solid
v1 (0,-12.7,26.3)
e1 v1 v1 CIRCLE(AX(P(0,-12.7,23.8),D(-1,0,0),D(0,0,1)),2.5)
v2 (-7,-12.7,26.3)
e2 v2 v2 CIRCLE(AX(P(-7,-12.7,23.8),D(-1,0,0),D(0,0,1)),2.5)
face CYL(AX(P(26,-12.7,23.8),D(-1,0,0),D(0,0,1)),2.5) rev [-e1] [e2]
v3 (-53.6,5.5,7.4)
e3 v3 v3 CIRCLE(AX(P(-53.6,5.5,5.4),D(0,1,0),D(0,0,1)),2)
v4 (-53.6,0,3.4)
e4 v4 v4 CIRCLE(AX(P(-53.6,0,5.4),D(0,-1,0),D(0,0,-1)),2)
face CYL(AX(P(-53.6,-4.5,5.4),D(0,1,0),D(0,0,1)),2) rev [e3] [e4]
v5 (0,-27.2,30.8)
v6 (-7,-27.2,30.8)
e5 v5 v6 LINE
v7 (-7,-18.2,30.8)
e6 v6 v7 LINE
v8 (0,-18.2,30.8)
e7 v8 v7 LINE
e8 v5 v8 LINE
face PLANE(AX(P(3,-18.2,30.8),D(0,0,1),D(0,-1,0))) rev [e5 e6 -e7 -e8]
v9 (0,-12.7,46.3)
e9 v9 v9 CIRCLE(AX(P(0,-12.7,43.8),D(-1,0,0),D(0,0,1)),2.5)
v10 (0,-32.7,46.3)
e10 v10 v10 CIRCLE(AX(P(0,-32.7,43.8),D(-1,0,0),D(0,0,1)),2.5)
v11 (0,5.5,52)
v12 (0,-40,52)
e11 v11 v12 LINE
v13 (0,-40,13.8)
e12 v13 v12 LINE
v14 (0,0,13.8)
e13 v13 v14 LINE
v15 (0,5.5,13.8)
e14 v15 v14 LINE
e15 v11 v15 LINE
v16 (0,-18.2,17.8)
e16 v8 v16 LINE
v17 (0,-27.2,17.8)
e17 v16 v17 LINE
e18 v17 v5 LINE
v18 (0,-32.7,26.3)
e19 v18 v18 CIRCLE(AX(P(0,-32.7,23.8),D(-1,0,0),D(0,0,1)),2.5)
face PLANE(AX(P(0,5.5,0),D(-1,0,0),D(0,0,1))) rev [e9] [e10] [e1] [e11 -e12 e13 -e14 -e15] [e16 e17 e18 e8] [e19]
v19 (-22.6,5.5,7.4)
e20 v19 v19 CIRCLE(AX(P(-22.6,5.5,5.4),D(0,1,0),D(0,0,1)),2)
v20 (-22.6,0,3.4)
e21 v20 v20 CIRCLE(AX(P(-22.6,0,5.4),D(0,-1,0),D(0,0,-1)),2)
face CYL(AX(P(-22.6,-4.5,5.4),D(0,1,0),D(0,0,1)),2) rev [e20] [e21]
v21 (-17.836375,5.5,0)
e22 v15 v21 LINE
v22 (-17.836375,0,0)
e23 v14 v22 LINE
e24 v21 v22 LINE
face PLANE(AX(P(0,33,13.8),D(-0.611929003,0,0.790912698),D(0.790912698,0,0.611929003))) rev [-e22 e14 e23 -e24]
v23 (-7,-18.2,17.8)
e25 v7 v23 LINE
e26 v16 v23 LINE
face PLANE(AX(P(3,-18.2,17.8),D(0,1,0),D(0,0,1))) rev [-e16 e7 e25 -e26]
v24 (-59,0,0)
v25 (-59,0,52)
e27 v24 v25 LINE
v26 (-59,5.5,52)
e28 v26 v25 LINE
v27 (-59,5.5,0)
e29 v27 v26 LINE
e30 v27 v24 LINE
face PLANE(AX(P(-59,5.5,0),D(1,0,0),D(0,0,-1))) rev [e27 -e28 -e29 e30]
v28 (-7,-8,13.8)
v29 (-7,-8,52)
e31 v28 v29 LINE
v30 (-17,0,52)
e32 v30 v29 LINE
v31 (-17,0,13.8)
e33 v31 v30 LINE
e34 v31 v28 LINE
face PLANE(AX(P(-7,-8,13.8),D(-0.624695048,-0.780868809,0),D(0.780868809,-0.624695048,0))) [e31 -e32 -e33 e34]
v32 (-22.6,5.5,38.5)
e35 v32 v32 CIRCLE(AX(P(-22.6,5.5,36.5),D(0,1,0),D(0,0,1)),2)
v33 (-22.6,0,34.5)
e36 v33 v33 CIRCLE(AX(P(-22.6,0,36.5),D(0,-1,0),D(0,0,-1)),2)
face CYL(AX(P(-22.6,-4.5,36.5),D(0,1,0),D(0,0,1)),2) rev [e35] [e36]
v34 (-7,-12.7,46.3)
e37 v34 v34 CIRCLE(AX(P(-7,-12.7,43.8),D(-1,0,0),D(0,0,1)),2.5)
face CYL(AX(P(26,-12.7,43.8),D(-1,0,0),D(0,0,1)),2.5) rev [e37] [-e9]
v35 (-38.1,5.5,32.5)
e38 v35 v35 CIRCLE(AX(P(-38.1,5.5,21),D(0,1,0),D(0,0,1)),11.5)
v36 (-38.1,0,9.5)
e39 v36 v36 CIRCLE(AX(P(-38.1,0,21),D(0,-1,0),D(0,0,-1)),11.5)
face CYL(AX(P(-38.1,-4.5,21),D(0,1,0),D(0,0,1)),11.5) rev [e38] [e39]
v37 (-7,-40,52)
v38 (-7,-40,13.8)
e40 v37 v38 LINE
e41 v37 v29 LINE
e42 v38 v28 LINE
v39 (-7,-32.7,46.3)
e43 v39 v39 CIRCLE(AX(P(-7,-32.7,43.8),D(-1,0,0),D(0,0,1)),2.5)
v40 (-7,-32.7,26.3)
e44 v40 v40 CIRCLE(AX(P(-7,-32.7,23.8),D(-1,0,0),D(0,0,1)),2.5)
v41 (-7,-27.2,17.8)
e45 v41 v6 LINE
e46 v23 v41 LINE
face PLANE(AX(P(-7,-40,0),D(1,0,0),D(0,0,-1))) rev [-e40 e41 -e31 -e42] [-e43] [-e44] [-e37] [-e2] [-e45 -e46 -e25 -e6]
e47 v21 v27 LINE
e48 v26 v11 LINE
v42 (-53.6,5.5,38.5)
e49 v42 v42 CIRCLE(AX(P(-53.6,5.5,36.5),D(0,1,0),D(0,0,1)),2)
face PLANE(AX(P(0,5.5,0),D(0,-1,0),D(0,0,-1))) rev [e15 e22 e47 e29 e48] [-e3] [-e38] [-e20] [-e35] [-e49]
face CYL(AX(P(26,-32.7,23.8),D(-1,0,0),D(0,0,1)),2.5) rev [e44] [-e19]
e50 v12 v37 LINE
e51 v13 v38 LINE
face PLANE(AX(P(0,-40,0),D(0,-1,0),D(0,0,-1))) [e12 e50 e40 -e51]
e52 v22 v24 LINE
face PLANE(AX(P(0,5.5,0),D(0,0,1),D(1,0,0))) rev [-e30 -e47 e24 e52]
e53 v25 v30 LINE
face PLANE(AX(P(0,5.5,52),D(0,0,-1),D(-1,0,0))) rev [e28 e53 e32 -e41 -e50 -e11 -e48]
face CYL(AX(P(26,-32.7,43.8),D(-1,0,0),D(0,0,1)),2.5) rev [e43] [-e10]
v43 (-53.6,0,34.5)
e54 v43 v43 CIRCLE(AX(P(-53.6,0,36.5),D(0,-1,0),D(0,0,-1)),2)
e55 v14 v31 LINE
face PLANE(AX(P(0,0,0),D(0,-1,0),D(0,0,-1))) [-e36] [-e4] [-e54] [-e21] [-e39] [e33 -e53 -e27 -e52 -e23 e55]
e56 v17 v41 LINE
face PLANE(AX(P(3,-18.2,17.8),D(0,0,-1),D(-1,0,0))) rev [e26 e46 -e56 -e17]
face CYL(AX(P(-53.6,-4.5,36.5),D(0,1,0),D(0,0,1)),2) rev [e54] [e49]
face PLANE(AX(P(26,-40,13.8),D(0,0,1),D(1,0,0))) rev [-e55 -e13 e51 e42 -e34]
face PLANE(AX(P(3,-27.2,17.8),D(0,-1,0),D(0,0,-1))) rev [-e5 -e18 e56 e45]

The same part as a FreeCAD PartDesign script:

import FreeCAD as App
import Part
import Sketcher

doc = App.newDocument("Part")
body = doc.addObject("PartDesign::Body", "Body")

# Sketch on XZ plane
sketch1 = body.newObject("Sketcher::SketchObject", "Sketch")
sketch1.AttachmentSupport = (doc.getObject("XZ_Plane"), [""])
sketch1.MapMode = "FlatFace"
sketch1.addGeometry(Part.LineSegment(App.Vector(-59, 0, 0), App.Vector(-59, 52, 0)), False)
sketch1.addGeometry(Part.LineSegment(App.Vector(-59, 52, 0), App.Vector(0, 52, 0)), False)
sketch1.addGeometry(Part.LineSegment(App.Vector(0, 52, 0), App.Vector(0, 0, 0)), False)
sketch1.addGeometry(Part.LineSegment(App.Vector(0, 0, 0), App.Vector(-59, 0, 0)), False)
sketch1.addConstraint(Sketcher.Constraint("Coincident", 0, 2, 1, 1))
sketch1.addConstraint(Sketcher.Constraint("Coincident", 1, 2, 2, 1))
sketch1.addConstraint(Sketcher.Constraint("Coincident", 2, 2, 3, 1))
sketch1.addConstraint(Sketcher.Constraint("Coincident", 3, 2, 0, 1))
sketch1.addConstraint(Sketcher.Constraint("Vertical", 0))
sketch1.addConstraint(Sketcher.Constraint("Horizontal", 1))
sketch1.addConstraint(Sketcher.Constraint("Vertical", 2))
sketch1.addConstraint(Sketcher.Constraint("Horizontal", 3))
sketch1.addConstraint(Sketcher.Constraint("Coincident", 2, 2, -1, 1))
sketch1.addConstraint(Sketcher.Constraint("DistanceX", 1, 1, 1, 2, 59.0))
sketch1.addConstraint(Sketcher.Constraint("DistanceY", 0, 1, 0, 2, 52.0))
pad1 = body.newObject("PartDesign::Pad", "Pad")
pad1.Profile = sketch1
pad1.Length = 5.5
pad1.Reversed = True

# Sketch on XZ plane
sketch2 = body.newObject("Sketcher::SketchObject", "Sketch001")
sketch2.AttachmentSupport = (doc.getObject("XZ_Plane"), [""])
sketch2.MapMode = "FlatFace"
sketch2.AttachmentOffset = App.Placement(App.Vector(0, 0, -5.5), App.Rotation())
sketch2.addGeometry(Part.Circle(App.Vector(-53.6, 5.4, 0), App.Vector(0, 0, 1), 2), False)
sketch2.addGeometry(Part.Circle(App.Vector(-22.6, 5.4, 0), App.Vector(0, 0, 1), 2), False)
sketch2.addGeometry(Part.Circle(App.Vector(-53.6, 36.5, 0), App.Vector(0, 0, 1), 2), False)
sketch2.addGeometry(Part.Circle(App.Vector(-22.6, 36.5, 0), App.Vector(0, 0, 1), 2), False)
sketch2.addConstraint(Sketcher.Constraint("Equal", 0, 1))
sketch2.addConstraint(Sketcher.Constraint("Equal", 1, 2))
sketch2.addConstraint(Sketcher.Constraint("Equal", 2, 3))
sketch2.addConstraint(Sketcher.Constraint("Horizontal", 0, 3, 1, 3))
sketch2.addConstraint(Sketcher.Constraint("Horizontal", 2, 3, 3, 3))
sketch2.addConstraint(Sketcher.Constraint("Vertical", 0, 3, 2, 3))
sketch2.addConstraint(Sketcher.Constraint("Vertical", 1, 3, 3, 3))
sketch2.addConstraint(Sketcher.Constraint("Diameter", 0, 4.0))
sketch2.addConstraint(Sketcher.Constraint("DistanceX", 0, 3, 1, 3, 31.0))
sketch2.addConstraint(Sketcher.Constraint("DistanceX", 0, 3, -1, 1, 53.6))
sketch2.addConstraint(Sketcher.Constraint("DistanceY", -1, 1, 0, 3, 5.4))
sketch2.addConstraint(Sketcher.Constraint("DistanceY", -1, 1, 2, 3, 36.5))
pocket1 = body.newObject("PartDesign::Pocket", "Pocket")
pocket1.Profile = sketch2
pocket1.Length = 10
pocket1.Reversed = True

# Sketch on XZ plane
sketch3 = body.newObject("Sketcher::SketchObject", "Sketch002")
sketch3.AttachmentSupport = (doc.getObject("XZ_Plane"), [""])
sketch3.MapMode = "FlatFace"
sketch3.addGeometry(Part.LineSegment(App.Vector(0, 0, 0), App.Vector(0, 52, 0)), False)
sketch3.addGeometry(Part.LineSegment(App.Vector(0, 52, 0), App.Vector(-7, 52, 0)), False)
sketch3.addGeometry(Part.LineSegment(App.Vector(-7, 52, 0), App.Vector(-7, 0, 0)), False)
sketch3.addGeometry(Part.LineSegment(App.Vector(-7, 0, 0), App.Vector(0, 0, 0)), False)
sketch3.addConstraint(Sketcher.Constraint("Coincident", 0, 2, 1, 1))
sketch3.addConstraint(Sketcher.Constraint("Coincident", 1, 2, 2, 1))
sketch3.addConstraint(Sketcher.Constraint("Coincident", 2, 2, 3, 1))
sketch3.addConstraint(Sketcher.Constraint("Coincident", 3, 2, 0, 1))
sketch3.addConstraint(Sketcher.Constraint("Vertical", 0))
sketch3.addConstraint(Sketcher.Constraint("Horizontal", 1))
sketch3.addConstraint(Sketcher.Constraint("Vertical", 2))
sketch3.addConstraint(Sketcher.Constraint("Horizontal", 3))
sketch3.addConstraint(Sketcher.Constraint("Coincident", 3, 2, -1, 1))
sketch3.addConstraint(Sketcher.Constraint("DistanceX", 1, 2, 1, 1, 7.0))
sketch3.addConstraint(Sketcher.Constraint("DistanceY", 0, 1, 0, 2, 52.0))
pad2 = body.newObject("PartDesign::Pad", "Pad001")
pad2.Profile = sketch3
pad2.Length = 40

# Sketch on YZ plane
sketch4 = body.newObject("Sketcher::SketchObject", "Sketch003")
sketch4.AttachmentSupport = (doc.getObject("YZ_Plane"), [""])
sketch4.MapMode = "FlatFace"
sketch4.AttachmentOffset = App.Placement(App.Vector(0, 0, -7), App.Rotation())
sketch4.addGeometry(Part.Circle(App.Vector(-32.7, 43.8, 0), App.Vector(0, 0, 1), 2.5), False)
sketch4.addGeometry(Part.Circle(App.Vector(-12.7, 43.8, 0), App.Vector(0, 0, 1), 2.5), False)
sketch4.addGeometry(Part.Circle(App.Vector(-32.7, 23.8, 0), App.Vector(0, 0, 1), 2.5), False)
sketch4.addGeometry(Part.Circle(App.Vector(-12.7, 23.8, 0), App.Vector(0, 0, 1), 2.5), False)
sketch4.addConstraint(Sketcher.Constraint("Equal", 0, 1))
sketch4.addConstraint(Sketcher.Constraint("Equal", 1, 2))
sketch4.addConstraint(Sketcher.Constraint("Equal", 2, 3))
sketch4.addConstraint(Sketcher.Constraint("Horizontal", 0, 3, 1, 3))
sketch4.addConstraint(Sketcher.Constraint("Horizontal", 2, 3, 3, 3))
sketch4.addConstraint(Sketcher.Constraint("Vertical", 0, 3, 2, 3))
sketch4.addConstraint(Sketcher.Constraint("Vertical", 1, 3, 3, 3))
sketch4.addConstraint(Sketcher.Constraint("Diameter", 0, 5.0))
sketch4.addConstraint(Sketcher.Constraint("DistanceX", 0, 3, 1, 3, 20.0))
sketch4.addConstraint(Sketcher.Constraint("DistanceY", 2, 3, 0, 3, 20.0))
sketch4.addConstraint(Sketcher.Constraint("DistanceX", 0, 3, -1, 1, 32.7))
sketch4.addConstraint(Sketcher.Constraint("DistanceY", -1, 1, 0, 3, 43.8))
pocket2 = body.newObject("PartDesign::Pocket", "Pocket001")
pocket2.Profile = sketch4
pocket2.Length = 33
pocket2.Reversed = True

# Sketch on YZ plane
sketch5 = body.newObject("Sketcher::SketchObject", "Sketch004")
sketch5.AttachmentSupport = (doc.getObject("YZ_Plane"), [""])
sketch5.MapMode = "FlatFace"
sketch5.AttachmentOffset = App.Placement(App.Vector(0, 0, -7), App.Rotation())
sketch5.addGeometry(Part.LineSegment(App.Vector(0, 0, 0), App.Vector(-40, 0, 0)), False)
sketch5.addGeometry(Part.LineSegment(App.Vector(-40, 0, 0), App.Vector(-40, 14, 0)), False)
sketch5.addGeometry(Part.LineSegment(App.Vector(-40, 14, 0), App.Vector(0, 14, 0)), False)
sketch5.addGeometry(Part.LineSegment(App.Vector(0, 14, 0), App.Vector(0, 0, 0)), False)
sketch5.addConstraint(Sketcher.Constraint("Coincident", 0, 2, 1, 1))
sketch5.addConstraint(Sketcher.Constraint("Coincident", 1, 2, 2, 1))
sketch5.addConstraint(Sketcher.Constraint("Coincident", 2, 2, 3, 1))
sketch5.addConstraint(Sketcher.Constraint("Coincident", 3, 2, 0, 1))
sketch5.addConstraint(Sketcher.Constraint("Horizontal", 0))
sketch5.addConstraint(Sketcher.Constraint("Vertical", 1))
sketch5.addConstraint(Sketcher.Constraint("Horizontal", 2))
sketch5.addConstraint(Sketcher.Constraint("Vertical", 3))
sketch5.addConstraint(Sketcher.Constraint("Coincident", 3, 2, -1, 1))
sketch5.addConstraint(Sketcher.Constraint("DistanceX", 0, 2, 0, 1, 40.0))
sketch5.addConstraint(Sketcher.Constraint("DistanceY", 1, 1, 1, 2, 13.8))
pocket3 = body.newObject("PartDesign::Pocket", "Pocket002")
pocket3.Profile = sketch5
pocket3.Length = 33
pocket3.Reversed = True

# Sketch on XZ plane
sketch6 = body.newObject("Sketcher::SketchObject", "Sketch005")
sketch6.AttachmentSupport = (doc.getObject("XZ_Plane"), [""])
sketch6.MapMode = "FlatFace"
sketch6.addGeometry(Part.LineSegment(App.Vector(0, 0, 0), App.Vector(0, 14, 0)), False)
sketch6.addGeometry(Part.LineSegment(App.Vector(0, 14, 0), App.Vector(-18, 0, 0)), False)
sketch6.addGeometry(Part.LineSegment(App.Vector(-18, 0, 0), App.Vector(0, 0, 0)), False)
sketch6.addConstraint(Sketcher.Constraint("Coincident", 0, 2, 1, 1))
sketch6.addConstraint(Sketcher.Constraint("Coincident", 1, 2, 2, 1))
sketch6.addConstraint(Sketcher.Constraint("Coincident", 2, 2, 0, 1))
sketch6.addConstraint(Sketcher.Constraint("Vertical", 0))
sketch6.addConstraint(Sketcher.Constraint("Horizontal", 2))
sketch6.addConstraint(Sketcher.Constraint("Coincident", 2, 2, -1, 1))
sketch6.addConstraint(Sketcher.Constraint("DistanceY", 0, 1, 0, 2, 13.8))
sketch6.addConstraint(Sketcher.Constraint("DistanceX", 2, 1, 2, 2, 17.836375))
pocket4 = body.newObject("PartDesign::Pocket", "Pocket003")
pocket4.Profile = sketch6
pocket4.Length = 33

# Sketch on XY plane
sketch7 = body.newObject("Sketcher::SketchObject", "Sketch006")
sketch7.AttachmentSupport = (doc.getObject("XY_Plane"), [""])
sketch7.MapMode = "FlatFace"
sketch7.AttachmentOffset = App.Placement(App.Vector(0, 0, 52), App.Rotation())
sketch7.addGeometry(Part.LineSegment(App.Vector(-7, -8, 0), App.Vector(-7, 0, 0)), False)
sketch7.addGeometry(Part.LineSegment(App.Vector(-7, 0, 0), App.Vector(-17, 0, 0)), False)
sketch7.addGeometry(Part.LineSegment(App.Vector(-17, 0, 0), App.Vector(-7, -8, 0)), False)
sketch7.addConstraint(Sketcher.Constraint("Coincident", 0, 2, 1, 1))
sketch7.addConstraint(Sketcher.Constraint("Coincident", 1, 2, 2, 1))
sketch7.addConstraint(Sketcher.Constraint("Coincident", 2, 2, 0, 1))
sketch7.addConstraint(Sketcher.Constraint("Vertical", 0))
sketch7.addConstraint(Sketcher.Constraint("Horizontal", 1))
sketch7.addConstraint(Sketcher.Constraint("PointOnObject", 0, 2, -1))
sketch7.addConstraint(Sketcher.Constraint("DistanceX", 1, 2, 1, 1, 10.0))
sketch7.addConstraint(Sketcher.Constraint("DistanceY", 0, 1, 0, 2, 8.0))
sketch7.addConstraint(Sketcher.Constraint("DistanceX", 0, 2, -1, 1, 7.0))
pad3 = body.newObject("PartDesign::Pad", "Pad002")
pad3.Profile = sketch7
pad3.Length = 38.2
pad3.Reversed = True

# Sketch on YZ plane
sketch8 = body.newObject("Sketcher::SketchObject", "Sketch007")
sketch8.AttachmentSupport = (doc.getObject("YZ_Plane"), [""])
sketch8.MapMode = "FlatFace"
sketch8.AttachmentOffset = App.Placement(App.Vector(0, 0, -7), App.Rotation())
sketch8.addGeometry(Part.LineSegment(App.Vector(-18, 18, 0), App.Vector(-27, 18, 0)), False)
sketch8.addGeometry(Part.LineSegment(App.Vector(-27, 18, 0), App.Vector(-27, 31, 0)), False)
sketch8.addGeometry(Part.LineSegment(App.Vector(-27, 31, 0), App.Vector(-18, 31, 0)), False)
sketch8.addGeometry(Part.LineSegment(App.Vector(-18, 31, 0), App.Vector(-18, 18, 0)), False)
sketch8.addConstraint(Sketcher.Constraint("Coincident", 0, 2, 1, 1))
sketch8.addConstraint(Sketcher.Constraint("Coincident", 1, 2, 2, 1))
sketch8.addConstraint(Sketcher.Constraint("Coincident", 2, 2, 3, 1))
sketch8.addConstraint(Sketcher.Constraint("Coincident", 3, 2, 0, 1))
sketch8.addConstraint(Sketcher.Constraint("Horizontal", 0))
sketch8.addConstraint(Sketcher.Constraint("Vertical", 1))
sketch8.addConstraint(Sketcher.Constraint("Horizontal", 2))
sketch8.addConstraint(Sketcher.Constraint("Vertical", 3))
sketch8.addConstraint(Sketcher.Constraint("DistanceX", 0, 2, 0, 1, 9.0))
sketch8.addConstraint(Sketcher.Constraint("DistanceY", 1, 1, 1, 2, 13.0))
sketch8.addConstraint(Sketcher.Constraint("DistanceX", 0, 2, -1, 1, 27.2))
sketch8.addConstraint(Sketcher.Constraint("DistanceY", -1, 1, 0, 2, 17.8))
pocket5 = body.newObject("PartDesign::Pocket", "Pocket004")
pocket5.Profile = sketch8
pocket5.Length = 10
pocket5.Reversed = True

# Sketch on XZ plane
sketch9 = body.newObject("Sketcher::SketchObject", "Sketch008")
sketch9.AttachmentSupport = (doc.getObject("XZ_Plane"), [""])
sketch9.MapMode = "FlatFace"
sketch9.AttachmentOffset = App.Placement(App.Vector(0, 0, -5.5), App.Rotation())
sketch9.addGeometry(Part.Circle(App.Vector(-38, 21, 0), App.Vector(0, 0, 1), 12), False)
sketch9.addConstraint(Sketcher.Constraint("Diameter", 0, 23.0))
sketch9.addConstraint(Sketcher.Constraint("DistanceY", -1, 1, 0, 3, 21.0))
sketch9.addConstraint(Sketcher.Constraint("DistanceX", 0, 3, -1, 1, 38.1))
pocket6 = body.newObject("PartDesign::Pocket", "Pocket005")
pocket6.Profile = sketch9
pocket6.Length = 10
pocket6.Reversed = True

doc.recompute()
